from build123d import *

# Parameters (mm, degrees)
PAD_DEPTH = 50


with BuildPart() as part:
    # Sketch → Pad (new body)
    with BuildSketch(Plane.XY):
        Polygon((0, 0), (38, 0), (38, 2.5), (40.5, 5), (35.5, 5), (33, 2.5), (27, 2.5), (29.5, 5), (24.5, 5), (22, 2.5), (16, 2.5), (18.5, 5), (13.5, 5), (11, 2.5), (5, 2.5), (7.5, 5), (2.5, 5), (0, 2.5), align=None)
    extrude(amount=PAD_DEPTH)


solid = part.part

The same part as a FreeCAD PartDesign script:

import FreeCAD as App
import Part
import Sketcher

V = App.Vector
Q = App.Units.Quantity


def add_polygon(sketch, points):
    """Adds a closed chain of lines whose ends are joined by coincident constraints."""
    first, n = sketch.GeometryCount, len(points)
    for a, b in zip(points, points[1:] + points[:1]):
        sketch.addGeometry(Part.LineSegment(App.Vector(*a, 0), App.Vector(*b, 0)), False)
    for i in range(n):
        sketch.addConstraint(Sketcher.Constraint("Coincident", first + i, 2, first + (i + 1) % n, 1))

doc = App.newDocument("Part")
body = doc.addObject("PartDesign::Body", "Body")

sketch1 = body.newObject("Sketcher::SketchObject", "Sketch")
sketch1.AttachmentSupport = (doc.getObject("XY_Plane"), [""])
sketch1.MapMode = "FlatFace"
add_polygon(sketch1, [(0, 0), (38, 0), (38, 2.5), (40.5, 5), (35.5, 5), (33, 2.5), (27, 2.5), (29.5, 5), (24.5, 5), (22, 2.5), (16, 2.5), (18.5, 5), (13.5, 5), (11, 2.5), (5, 2.5), (7.5, 5), (2.5, 5), (0, 2.5)])
sketch1.addConstraint(Sketcher.Constraint("Horizontal", 0))
sketch1.addConstraint(Sketcher.Constraint("Vertical", 1))
sketch1.addConstraint(Sketcher.Constraint("Horizontal", 3))
sketch1.addConstraint(Sketcher.Constraint("Horizontal", 5))
sketch1.addConstraint(Sketcher.Constraint("Horizontal", 7))
sketch1.addConstraint(Sketcher.Constraint("Horizontal", 9))
sketch1.addConstraint(Sketcher.Constraint("Horizontal", 11))
sketch1.addConstraint(Sketcher.Constraint("Horizontal", 13))
sketch1.addConstraint(Sketcher.Constraint("Horizontal", 15))
sketch1.addConstraint(Sketcher.Constraint("Vertical", 17))
sketch1.addConstraint(Sketcher.Constraint("Coincident", 17, 2, -1, 1))
sketch1.addConstraint(Sketcher.Constraint("Parallel", 2, 4))
sketch1.addConstraint(Sketcher.Constraint("Parallel", 4, 6))
sketch1.addConstraint(Sketcher.Constraint("Parallel", 6, 8))
sketch1.addConstraint(Sketcher.Constraint("Parallel", 8, 10))
sketch1.addConstraint(Sketcher.Constraint("Parallel", 10, 12))
sketch1.addConstraint(Sketcher.Constraint("Parallel", 12, 14))
sketch1.addConstraint(Sketcher.Constraint("Parallel", 14, 16))
sketch1.addConstraint(Sketcher.Constraint("Horizontal", 1, 2, 4, 2))
sketch1.addConstraint(Sketcher.Constraint("Horizontal", 3, 2, 6, 2))
sketch1.addConstraint(Sketcher.Constraint("Horizontal", 5, 2, 8, 2))
sketch1.addConstraint(Sketcher.Constraint("Horizontal", 7, 2, 10, 2))
sketch1.addConstraint(Sketcher.Constraint("Horizontal", 9, 2, 12, 2))
sketch1.addConstraint(Sketcher.Constraint("Horizontal", 11, 2, 14, 2))
sketch1.addConstraint(Sketcher.Constraint("Horizontal", 13, 2, 16, 2))
sketch1.addConstraint(Sketcher.Constraint("Equal", 3, 7))
sketch1.addConstraint(Sketcher.Constraint("Equal", 5, 9))
sketch1.addConstraint(Sketcher.Constraint("Equal", 7, 11))
sketch1.addConstraint(Sketcher.Constraint("Equal", 9, 13))
sketch1.addConstraint(Sketcher.Constraint("Equal", 11, 15))
sketch1.addConstraint(Sketcher.Constraint("DistanceX", 0, 1, 0, 2, 38.0))
sketch1.addConstraint(Sketcher.Constraint("DistanceX", 3, 2, 3, 1, 5.0))
sketch1.addConstraint(Sketcher.Constraint("Angle", 2, Q("45 deg")))
sketch1.addConstraint(Sketcher.Constraint("DistanceY", 1, 1, 1, 2, 2.5))
sketch1.addConstraint(Sketcher.Constraint("DistanceY", -1, 1, 2, 2, 5.0))
pad1 = body.newObject("PartDesign::Pad", "Pad")
pad1.Profile = sketch1
pad1.Length = 50

doc.recompute()
